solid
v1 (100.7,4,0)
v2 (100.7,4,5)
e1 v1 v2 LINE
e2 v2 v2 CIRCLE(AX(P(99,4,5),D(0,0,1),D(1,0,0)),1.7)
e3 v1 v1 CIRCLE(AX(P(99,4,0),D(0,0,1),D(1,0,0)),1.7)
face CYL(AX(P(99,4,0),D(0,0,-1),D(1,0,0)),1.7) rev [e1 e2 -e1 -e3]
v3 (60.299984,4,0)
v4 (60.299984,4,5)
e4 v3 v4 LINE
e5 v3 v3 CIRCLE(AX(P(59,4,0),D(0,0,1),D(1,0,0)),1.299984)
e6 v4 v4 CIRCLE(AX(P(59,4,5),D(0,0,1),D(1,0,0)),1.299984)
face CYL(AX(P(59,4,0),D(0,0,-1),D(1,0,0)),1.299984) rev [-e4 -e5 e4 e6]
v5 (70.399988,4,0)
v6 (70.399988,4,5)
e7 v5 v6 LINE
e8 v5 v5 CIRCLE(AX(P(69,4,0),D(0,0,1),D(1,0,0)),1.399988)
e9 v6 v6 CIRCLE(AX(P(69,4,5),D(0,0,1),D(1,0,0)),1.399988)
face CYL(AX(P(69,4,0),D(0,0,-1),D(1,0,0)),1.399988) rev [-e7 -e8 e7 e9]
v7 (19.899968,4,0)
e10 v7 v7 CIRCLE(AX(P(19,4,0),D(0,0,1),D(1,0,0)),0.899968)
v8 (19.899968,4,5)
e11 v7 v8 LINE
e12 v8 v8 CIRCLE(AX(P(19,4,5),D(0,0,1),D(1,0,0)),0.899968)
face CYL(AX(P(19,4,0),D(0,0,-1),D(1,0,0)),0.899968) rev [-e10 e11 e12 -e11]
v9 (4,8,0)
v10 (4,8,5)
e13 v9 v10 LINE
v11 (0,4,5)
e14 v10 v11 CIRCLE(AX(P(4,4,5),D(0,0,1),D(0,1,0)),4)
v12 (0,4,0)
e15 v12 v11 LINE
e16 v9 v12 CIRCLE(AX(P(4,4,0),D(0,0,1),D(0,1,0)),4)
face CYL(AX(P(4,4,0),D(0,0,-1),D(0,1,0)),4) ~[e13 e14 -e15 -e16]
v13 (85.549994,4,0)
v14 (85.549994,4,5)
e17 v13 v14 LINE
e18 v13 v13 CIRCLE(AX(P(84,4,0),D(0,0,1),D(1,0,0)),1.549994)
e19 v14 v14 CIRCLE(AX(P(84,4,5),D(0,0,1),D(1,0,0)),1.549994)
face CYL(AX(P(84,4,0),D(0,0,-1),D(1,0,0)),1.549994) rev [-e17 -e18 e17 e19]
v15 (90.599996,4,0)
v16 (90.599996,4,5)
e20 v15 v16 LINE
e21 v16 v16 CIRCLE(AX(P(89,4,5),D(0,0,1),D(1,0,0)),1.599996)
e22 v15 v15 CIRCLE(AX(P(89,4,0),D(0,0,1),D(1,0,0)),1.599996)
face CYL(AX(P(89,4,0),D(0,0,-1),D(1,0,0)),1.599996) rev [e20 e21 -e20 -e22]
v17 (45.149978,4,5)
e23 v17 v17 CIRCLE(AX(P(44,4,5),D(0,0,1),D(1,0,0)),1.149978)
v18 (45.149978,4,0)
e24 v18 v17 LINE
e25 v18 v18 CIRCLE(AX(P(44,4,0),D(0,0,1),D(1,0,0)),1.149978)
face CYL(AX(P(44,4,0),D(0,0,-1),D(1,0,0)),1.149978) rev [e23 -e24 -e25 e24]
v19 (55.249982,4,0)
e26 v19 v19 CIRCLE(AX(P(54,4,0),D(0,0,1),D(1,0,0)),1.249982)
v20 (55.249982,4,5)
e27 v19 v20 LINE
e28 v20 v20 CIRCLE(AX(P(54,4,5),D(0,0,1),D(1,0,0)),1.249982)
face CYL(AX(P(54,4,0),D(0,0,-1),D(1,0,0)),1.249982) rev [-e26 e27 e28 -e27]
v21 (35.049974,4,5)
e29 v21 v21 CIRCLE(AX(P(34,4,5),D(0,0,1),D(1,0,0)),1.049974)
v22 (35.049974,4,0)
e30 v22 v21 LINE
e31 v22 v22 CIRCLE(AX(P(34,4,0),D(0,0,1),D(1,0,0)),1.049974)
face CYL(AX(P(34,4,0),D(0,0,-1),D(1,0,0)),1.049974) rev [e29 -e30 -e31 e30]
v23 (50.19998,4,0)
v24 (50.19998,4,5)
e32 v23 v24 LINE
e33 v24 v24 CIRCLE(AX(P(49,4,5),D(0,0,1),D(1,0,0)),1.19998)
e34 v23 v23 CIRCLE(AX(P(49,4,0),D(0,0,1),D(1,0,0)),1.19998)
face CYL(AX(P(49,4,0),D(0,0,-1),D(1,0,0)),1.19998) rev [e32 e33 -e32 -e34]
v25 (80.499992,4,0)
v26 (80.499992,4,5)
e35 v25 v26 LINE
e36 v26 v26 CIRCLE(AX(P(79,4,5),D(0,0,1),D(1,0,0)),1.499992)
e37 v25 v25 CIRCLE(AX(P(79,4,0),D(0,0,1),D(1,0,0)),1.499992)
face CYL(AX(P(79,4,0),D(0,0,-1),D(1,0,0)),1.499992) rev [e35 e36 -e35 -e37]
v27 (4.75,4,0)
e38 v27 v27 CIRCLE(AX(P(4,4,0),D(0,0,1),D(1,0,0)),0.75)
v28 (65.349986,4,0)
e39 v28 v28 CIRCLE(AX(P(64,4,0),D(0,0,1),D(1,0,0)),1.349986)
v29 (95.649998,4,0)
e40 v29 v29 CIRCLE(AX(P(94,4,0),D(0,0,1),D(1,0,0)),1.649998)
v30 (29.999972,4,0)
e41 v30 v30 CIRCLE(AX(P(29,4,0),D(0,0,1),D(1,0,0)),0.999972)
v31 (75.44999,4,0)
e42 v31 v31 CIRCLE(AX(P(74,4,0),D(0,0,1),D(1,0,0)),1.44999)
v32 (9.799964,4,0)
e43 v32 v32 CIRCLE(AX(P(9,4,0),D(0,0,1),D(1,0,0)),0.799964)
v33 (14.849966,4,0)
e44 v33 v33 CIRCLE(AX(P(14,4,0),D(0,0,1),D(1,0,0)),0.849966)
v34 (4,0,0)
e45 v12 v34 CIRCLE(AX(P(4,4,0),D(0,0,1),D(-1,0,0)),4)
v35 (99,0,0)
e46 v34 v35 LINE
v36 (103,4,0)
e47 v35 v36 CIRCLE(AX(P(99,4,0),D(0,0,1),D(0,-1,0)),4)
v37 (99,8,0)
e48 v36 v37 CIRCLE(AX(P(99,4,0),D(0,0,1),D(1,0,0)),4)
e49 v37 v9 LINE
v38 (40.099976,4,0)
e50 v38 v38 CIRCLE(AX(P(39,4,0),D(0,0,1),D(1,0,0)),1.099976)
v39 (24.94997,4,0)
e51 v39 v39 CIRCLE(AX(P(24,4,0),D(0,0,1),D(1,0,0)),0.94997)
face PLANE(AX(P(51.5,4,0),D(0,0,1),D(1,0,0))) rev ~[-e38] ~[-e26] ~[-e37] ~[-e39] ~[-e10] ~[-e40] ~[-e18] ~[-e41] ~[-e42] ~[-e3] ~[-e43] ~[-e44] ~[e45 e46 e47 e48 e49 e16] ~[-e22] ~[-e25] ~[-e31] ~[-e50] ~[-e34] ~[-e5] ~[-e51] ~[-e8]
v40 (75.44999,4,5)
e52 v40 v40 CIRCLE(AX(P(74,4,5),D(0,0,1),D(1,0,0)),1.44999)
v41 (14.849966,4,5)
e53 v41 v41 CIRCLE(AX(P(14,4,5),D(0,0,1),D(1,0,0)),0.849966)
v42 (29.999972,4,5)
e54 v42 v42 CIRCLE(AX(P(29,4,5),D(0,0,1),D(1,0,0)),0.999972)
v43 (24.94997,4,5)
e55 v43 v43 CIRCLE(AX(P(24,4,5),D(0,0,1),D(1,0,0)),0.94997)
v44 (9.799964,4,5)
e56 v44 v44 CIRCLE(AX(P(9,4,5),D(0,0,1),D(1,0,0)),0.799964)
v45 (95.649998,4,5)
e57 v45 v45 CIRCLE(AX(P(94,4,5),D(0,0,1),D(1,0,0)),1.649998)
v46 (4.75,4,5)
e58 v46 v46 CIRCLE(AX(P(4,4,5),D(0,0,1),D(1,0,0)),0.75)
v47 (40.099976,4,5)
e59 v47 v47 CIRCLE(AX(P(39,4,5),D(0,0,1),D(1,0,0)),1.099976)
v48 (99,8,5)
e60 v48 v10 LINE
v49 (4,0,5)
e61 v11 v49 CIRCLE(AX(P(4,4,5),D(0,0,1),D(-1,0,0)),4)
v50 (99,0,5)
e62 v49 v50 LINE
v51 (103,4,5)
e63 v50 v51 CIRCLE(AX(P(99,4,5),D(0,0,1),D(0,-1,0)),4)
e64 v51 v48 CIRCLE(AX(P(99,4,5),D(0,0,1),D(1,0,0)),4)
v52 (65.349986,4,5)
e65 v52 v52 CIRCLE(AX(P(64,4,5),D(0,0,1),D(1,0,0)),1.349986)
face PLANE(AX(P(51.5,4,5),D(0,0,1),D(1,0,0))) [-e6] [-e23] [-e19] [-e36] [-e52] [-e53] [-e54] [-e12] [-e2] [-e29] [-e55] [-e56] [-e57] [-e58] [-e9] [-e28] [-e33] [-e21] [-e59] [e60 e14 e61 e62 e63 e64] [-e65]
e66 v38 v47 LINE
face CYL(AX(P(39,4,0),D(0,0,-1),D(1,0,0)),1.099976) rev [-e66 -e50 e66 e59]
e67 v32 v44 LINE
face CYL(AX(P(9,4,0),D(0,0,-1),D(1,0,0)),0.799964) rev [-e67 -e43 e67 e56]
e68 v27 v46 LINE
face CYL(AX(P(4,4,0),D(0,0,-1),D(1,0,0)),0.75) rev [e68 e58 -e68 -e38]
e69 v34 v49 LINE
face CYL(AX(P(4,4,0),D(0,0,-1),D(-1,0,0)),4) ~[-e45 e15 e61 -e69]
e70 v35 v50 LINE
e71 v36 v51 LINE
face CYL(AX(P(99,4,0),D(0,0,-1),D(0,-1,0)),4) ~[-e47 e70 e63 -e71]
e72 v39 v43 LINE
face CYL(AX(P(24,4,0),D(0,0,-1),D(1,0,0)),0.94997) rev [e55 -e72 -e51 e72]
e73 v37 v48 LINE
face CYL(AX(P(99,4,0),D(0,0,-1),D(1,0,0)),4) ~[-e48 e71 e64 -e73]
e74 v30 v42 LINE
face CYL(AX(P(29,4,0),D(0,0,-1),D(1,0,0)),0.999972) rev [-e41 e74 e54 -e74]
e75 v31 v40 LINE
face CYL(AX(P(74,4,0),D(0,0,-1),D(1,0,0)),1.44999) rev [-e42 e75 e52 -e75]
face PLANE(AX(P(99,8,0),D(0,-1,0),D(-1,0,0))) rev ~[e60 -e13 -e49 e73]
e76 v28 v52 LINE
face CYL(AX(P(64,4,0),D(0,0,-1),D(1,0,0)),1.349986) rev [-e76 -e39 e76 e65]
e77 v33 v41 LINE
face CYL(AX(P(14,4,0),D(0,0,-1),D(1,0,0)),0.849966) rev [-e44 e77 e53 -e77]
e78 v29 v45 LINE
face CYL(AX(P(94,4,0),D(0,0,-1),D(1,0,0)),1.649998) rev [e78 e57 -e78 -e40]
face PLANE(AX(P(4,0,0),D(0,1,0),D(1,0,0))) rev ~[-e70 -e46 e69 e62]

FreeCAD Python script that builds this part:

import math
import FreeCAD as App
import Part
import Sketcher
Q = App.Units.Quantity

doc = App.newDocument("Part")
body = doc.addObject("PartDesign::Body", "Body")

# Sketch on XY plane
sketch1 = body.newObject("Sketcher::SketchObject", "Sketch")
sketch1.AttachmentSupport = (doc.getObject("XY_Plane"), [""])
sketch1.MapMode = "FlatFace"
sketch1.addGeometry(Part.ArcOfCircle(Part.Circle(App.Vector(4, 4, 0), App.Vector(0, 0, 1), 4), math.radians(180), math.radians(270)), False)
sketch1.addGeometry(Part.LineSegment(App.Vector(4, 0, 0), App.Vector(99, 0, 0)), False)
sketch1.addGeometry(Part.ArcOfCircle(Part.Circle(App.Vector(99, 4, 0), App.Vector(0, 0, 1), 4), math.radians(-90), math.radians(0)), False)
sketch1.addGeometry(Part.ArcOfCircle(Part.Circle(App.Vector(99, 4, 0), App.Vector(0, 0, 1), 4), math.radians(0), math.radians(90)), False)
sketch1.addGeometry(Part.LineSegment(App.Vector(99, 8, 0), App.Vector(4, 8, 0)), False)
sketch1.addGeometry(Part.ArcOfCircle(Part.Circle(App.Vector(4, 4, 0), App.Vector(0, 0, 1), 4), math.radians(90), math.radians(180)), False)
sketch1.addGeometry(Part.Circle(App.Vector(4, 4, 0), App.Vector(0, 0, 1), 0.75), False)
sketch1.addGeometry(Part.Circle(App.Vector(9, 4, 0), App.Vector(0, 0, 1), 0.799964), False)
sketch1.addGeometry(Part.Circle(App.Vector(14, 4, 0), App.Vector(0, 0, 1), 0.849966), False)
sketch1.addGeometry(Part.Circle(App.Vector(19, 4, 0), App.Vector(0, 0, 1), 0.899968), False)
sketch1.addGeometry(Part.Circle(App.Vector(24, 4, 0), App.Vector(0, 0, 1), 0.94997), False)
sketch1.addGeometry(Part.Circle(App.Vector(29, 4, 0), App.Vector(0, 0, 1), 0.999972), False)
sketch1.addGeometry(Part.Circle(App.Vector(34, 4, 0), App.Vector(0, 0, 1), 1.049974), False)
sketch1.addGeometry(Part.Circle(App.Vector(39, 4, 0), App.Vector(0, 0, 1), 1.099976), False)
sketch1.addGeometry(Part.Circle(App.Vector(44, 4, 0), App.Vector(0, 0, 1), 1.149978), False)
sketch1.addGeometry(Part.Circle(App.Vector(49, 4, 0), App.Vector(0, 0, 1), 1.19998), False)
sketch1.addGeometry(Part.Circle(App.Vector(54, 4, 0), App.Vector(0, 0, 1), 1.249982), False)
sketch1.addGeometry(Part.Circle(App.Vector(59, 4, 0), App.Vector(0, 0, 1), 1.299984), False)
sketch1.addGeometry(Part.Circle(App.Vector(64, 4, 0), App.Vector(0, 0, 1), 1.349986), False)
sketch1.addGeometry(Part.Circle(App.Vector(69, 4, 0), App.Vector(0, 0, 1), 1.399988), False)
sketch1.addGeometry(Part.Circle(App.Vector(74, 4, 0), App.Vector(0, 0, 1), 1.44999), False)
sketch1.addGeometry(Part.Circle(App.Vector(79, 4, 0), App.Vector(0, 0, 1), 1.499992), False)
sketch1.addGeometry(Part.Circle(App.Vector(84, 4, 0), App.Vector(0, 0, 1), 1.549994), False)
sketch1.addGeometry(Part.Circle(App.Vector(89, 4, 0), App.Vector(0, 0, 1), 1.599996), False)
sketch1.addGeometry(Part.Circle(App.Vector(94, 4, 0), App.Vector(0, 0, 1), 1.649998), False)
sketch1.addGeometry(Part.Circle(App.Vector(99, 4, 0), App.Vector(0, 0, 1), 1.7), False)
sketch1.addConstraint(Sketcher.Constraint("Tangent", 0, 2, 1, 1))
sketch1.addConstraint(Sketcher.Constraint("Tangent", 1, 2, 2, 1))
sketch1.addConstraint(Sketcher.Constraint("Tangent", 2, 2, 3, 1))
sketch1.addConstraint(Sketcher.Constraint("Tangent", 3, 2, 4, 1))
sketch1.addConstraint(Sketcher.Constraint("Tangent", 4, 2, 5, 1))
sketch1.addConstraint(Sketcher.Constraint("Tangent", 5, 2, 0, 1))
sketch1.addConstraint(Sketcher.Constraint("Horizontal", 1))
sketch1.addConstraint(Sketcher.Constraint("Horizontal", 4))
sketch1.addConstraint(Sketcher.Constraint("Coincident", 6, 3, 0, 3))
sketch1.addConstraint(Sketcher.Constraint("Coincident", 25, 3, 2, 3))
sketch1.addConstraint(Sketcher.Constraint("Equal", 0, 2))
sketch1.addConstraint(Sketcher.Constraint("Equal", 2, 3))
sketch1.addConstraint(Sketcher.Constraint("PointOnObject", 0, 2, -1))
sketch1.addConstraint(Sketcher.Constraint("PointOnObject", 5, 2, -2))
sketch1.addConstraint(Sketcher.Constraint("Horizontal", 6, 3, 7, 3))
sketch1.addConstraint(Sketcher.Constraint("Horizontal", 7, 3, 8, 3))
sketch1.addConstraint(Sketcher.Constraint("Horizontal", 8, 3, 9, 3))
sketch1.addConstraint(Sketcher.Constraint("Horizontal", 9, 3, 10, 3))
sketch1.addConstraint(Sketcher.Constraint("Horizontal", 10, 3, 11, 3))
sketch1.addConstraint(Sketcher.Constraint("Horizontal", 11, 3, 12, 3))
sketch1.addConstraint(Sketcher.Constraint("Horizontal", 12, 3, 13, 3))
sketch1.addConstraint(Sketcher.Constraint("Horizontal", 13, 3, 14, 3))
sketch1.addConstraint(Sketcher.Constraint("Horizontal", 14, 3, 15, 3))
sketch1.addConstraint(Sketcher.Constraint("Horizontal", 15, 3, 16, 3))
sketch1.addConstraint(Sketcher.Constraint("Horizontal", 16, 3, 17, 3))
sketch1.addConstraint(Sketcher.Constraint("Horizontal", 17, 3, 18, 3))
sketch1.addConstraint(Sketcher.Constraint("Horizontal", 18, 3, 19, 3))
sketch1.addConstraint(Sketcher.Constraint("Horizontal", 19, 3, 20, 3))
sketch1.addConstraint(Sketcher.Constraint("Horizontal", 20, 3, 21, 3))
sketch1.addConstraint(Sketcher.Constraint("Horizontal", 21, 3, 22, 3))
sketch1.addConstraint(Sketcher.Constraint("Horizontal", 22, 3, 23, 3))
sketch1.addConstraint(Sketcher.Constraint("Horizontal", 23, 3, 24, 3))
sketch1.addConstraint(Sketcher.Constraint("Horizontal", 25, 3, 2, 2))
sketch1.addConstraint(Sketcher.Constraint("Horizontal", 2, 2, 5, 2))
sketch1.addConstraint(Sketcher.Constraint("Radius", 0, Q("4 mm")))
sketch1.addConstraint(Sketcher.Constraint("Diameter", 6, Q("1.5 mm")))
sketch1.addConstraint(Sketcher.Constraint("Diameter", 25, Q("3.4 mm")))
sketch1.addConstraint(Sketcher.Constraint("DistanceX", 1, 1, 1, 2, Q("95 mm")))
sketch1.addConstraint(Sketcher.Constraint("DistanceX", -1, 1, 7, 3, Q("9 mm")))
sketch1.addConstraint(Sketcher.Constraint("DistanceX", -1, 1, 8, 3, Q("14 mm")))
sketch1.addConstraint(Sketcher.Constraint("DistanceX", -1, 1, 9, 3, Q("19 mm")))
sketch1.addConstraint(Sketcher.Constraint("DistanceX", -1, 1, 10, 3, Q("24 mm")))
sketch1.addConstraint(Sketcher.Constraint("DistanceX", -1, 1, 11, 3, Q("29 mm")))
sketch1.addConstraint(Sketcher.Constraint("DistanceX", -1, 1, 12, 3, Q("34 mm")))
sketch1.addConstraint(Sketcher.Constraint("DistanceX", -1, 1, 13, 3, Q("39 mm")))
sketch1.addConstraint(Sketcher.Constraint("DistanceX", -1, 1, 14, 3, Q("44 mm")))
sketch1.addConstraint(Sketcher.Constraint("DistanceX", -1, 1, 15, 3, Q("49 mm")))
sketch1.addConstraint(Sketcher.Constraint("DistanceX", -1, 1, 16, 3, Q("54 mm")))
sketch1.addConstraint(Sketcher.Constraint("DistanceX", -1, 1, 17, 3, Q("59 mm")))
sketch1.addConstraint(Sketcher.Constraint("DistanceX", -1, 1, 18, 3, Q("64 mm")))
sketch1.addConstraint(Sketcher.Constraint("DistanceX", -1, 1, 19, 3, Q("69 mm")))
sketch1.addConstraint(Sketcher.Constraint("DistanceX", -1, 1, 20, 3, Q("74 mm")))
sketch1.addConstraint(Sketcher.Constraint("DistanceX", -1, 1, 21, 3, Q("79 mm")))
sketch1.addConstraint(Sketcher.Constraint("DistanceX", -1, 1, 22, 3, Q("84 mm")))
sketch1.addConstraint(Sketcher.Constraint("DistanceX", -1, 1, 23, 3, Q("89 mm")))
sketch1.addConstraint(Sketcher.Constraint("DistanceX", -1, 1, 24, 3, Q("94 mm")))
sketch1.addConstraint(Sketcher.Constraint("Diameter", 7, Q("1.599929 mm")))
sketch1.addConstraint(Sketcher.Constraint("Diameter", 10, Q("1.899941 mm")))
sketch1.addConstraint(Sketcher.Constraint("Diameter", 12, Q("2.099949 mm")))
sketch1.addConstraint(Sketcher.Constraint("Diameter", 15, Q("2.399961 mm")))
sketch1.addConstraint(Sketcher.Constraint("Diameter", 17, Q("2.599968 mm")))
sketch1.addConstraint(Sketcher.Constraint("Diameter", 20, Q("2.89998 mm")))
sketch1.addConstraint(Sketcher.Constraint("Diameter", 22, Q("3.099988 mm")))
sketch1.addConstraint(Sketcher.Constraint("Diameter", 8, Q("1.699933 mm")))
sketch1.addConstraint(Sketcher.Constraint("Diameter", 9, Q("1.799937 mm")))
sketch1.addConstraint(Sketcher.Constraint("Diameter", 11, Q("1.999945 mm")))
sketch1.addConstraint(Sketcher.Constraint("Diameter", 13, Q("2.199953 mm")))
sketch1.addConstraint(Sketcher.Constraint("Diameter", 14, Q("2.299957 mm")))
sketch1.addConstraint(Sketcher.Constraint("Diameter", 16, Q("2.499964 mm")))
sketch1.addConstraint(Sketcher.Constraint("Diameter", 18, Q("2.699972 mm")))
sketch1.addConstraint(Sketcher.Constraint("Diameter", 19, Q("2.799976 mm")))
sketch1.addConstraint(Sketcher.Constraint("Diameter", 21, Q("2.999984 mm")))
sketch1.addConstraint(Sketcher.Constraint("Diameter", 23, Q("3.199992 mm")))
sketch1.addConstraint(Sketcher.Constraint("Diameter", 24, Q("3.299996 mm")))
pad1 = body.newObject("PartDesign::Pad", "Pad")
pad1.Profile = sketch1
pad1.Length = 5

doc.recompute()
